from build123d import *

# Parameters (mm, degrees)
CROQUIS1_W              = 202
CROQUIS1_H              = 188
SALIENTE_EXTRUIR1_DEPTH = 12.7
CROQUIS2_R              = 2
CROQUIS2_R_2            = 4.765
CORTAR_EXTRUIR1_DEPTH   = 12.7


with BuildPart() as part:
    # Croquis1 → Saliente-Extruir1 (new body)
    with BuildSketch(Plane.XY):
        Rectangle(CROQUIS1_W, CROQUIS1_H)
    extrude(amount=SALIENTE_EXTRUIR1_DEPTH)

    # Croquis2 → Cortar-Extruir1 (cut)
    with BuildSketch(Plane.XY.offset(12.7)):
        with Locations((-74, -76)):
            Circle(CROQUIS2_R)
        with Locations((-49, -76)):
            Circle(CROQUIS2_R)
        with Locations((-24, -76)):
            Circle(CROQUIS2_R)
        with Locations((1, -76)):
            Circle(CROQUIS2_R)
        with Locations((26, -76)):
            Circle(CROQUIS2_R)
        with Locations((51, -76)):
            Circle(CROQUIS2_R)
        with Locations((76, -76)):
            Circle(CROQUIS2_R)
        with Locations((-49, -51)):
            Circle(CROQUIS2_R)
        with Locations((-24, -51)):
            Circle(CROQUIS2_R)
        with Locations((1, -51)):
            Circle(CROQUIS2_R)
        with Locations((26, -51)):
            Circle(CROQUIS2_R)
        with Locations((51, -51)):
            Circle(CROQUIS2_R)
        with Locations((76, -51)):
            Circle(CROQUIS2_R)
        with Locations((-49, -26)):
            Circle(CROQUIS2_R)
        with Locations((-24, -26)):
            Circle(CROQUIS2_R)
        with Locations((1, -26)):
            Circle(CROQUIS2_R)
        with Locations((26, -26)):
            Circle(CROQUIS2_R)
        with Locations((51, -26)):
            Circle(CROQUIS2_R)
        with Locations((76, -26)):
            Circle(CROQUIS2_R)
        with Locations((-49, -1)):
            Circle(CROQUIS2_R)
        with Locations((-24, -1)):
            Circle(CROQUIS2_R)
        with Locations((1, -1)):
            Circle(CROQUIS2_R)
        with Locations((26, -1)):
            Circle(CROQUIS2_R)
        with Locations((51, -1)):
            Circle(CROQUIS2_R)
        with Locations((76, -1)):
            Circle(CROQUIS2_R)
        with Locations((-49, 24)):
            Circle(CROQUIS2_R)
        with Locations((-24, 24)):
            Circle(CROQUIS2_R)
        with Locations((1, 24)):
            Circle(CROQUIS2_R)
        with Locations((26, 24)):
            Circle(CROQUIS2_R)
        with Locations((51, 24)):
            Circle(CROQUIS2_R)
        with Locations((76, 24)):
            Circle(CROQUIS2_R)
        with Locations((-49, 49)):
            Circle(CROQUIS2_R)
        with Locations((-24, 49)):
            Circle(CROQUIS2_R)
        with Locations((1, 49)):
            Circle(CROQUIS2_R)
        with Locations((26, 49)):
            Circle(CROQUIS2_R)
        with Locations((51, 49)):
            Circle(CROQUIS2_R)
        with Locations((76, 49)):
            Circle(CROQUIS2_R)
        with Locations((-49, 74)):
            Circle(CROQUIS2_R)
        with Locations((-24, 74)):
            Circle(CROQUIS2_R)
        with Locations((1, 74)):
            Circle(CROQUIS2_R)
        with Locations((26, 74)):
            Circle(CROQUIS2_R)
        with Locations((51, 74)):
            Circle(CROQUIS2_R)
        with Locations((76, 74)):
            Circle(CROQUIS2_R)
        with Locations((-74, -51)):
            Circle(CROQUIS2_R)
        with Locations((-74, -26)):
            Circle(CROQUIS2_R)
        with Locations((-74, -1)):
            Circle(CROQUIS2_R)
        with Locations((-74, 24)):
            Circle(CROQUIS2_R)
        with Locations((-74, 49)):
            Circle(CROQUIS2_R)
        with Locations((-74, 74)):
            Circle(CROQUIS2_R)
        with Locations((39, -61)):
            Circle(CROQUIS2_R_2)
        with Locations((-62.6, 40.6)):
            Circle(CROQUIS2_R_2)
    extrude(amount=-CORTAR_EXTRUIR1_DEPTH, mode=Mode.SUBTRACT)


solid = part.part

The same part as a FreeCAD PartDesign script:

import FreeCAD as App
import Part
import Sketcher

V = App.Vector


def add_polygon(sketch, points):
    """Adds a closed chain of lines whose ends are joined by coincident constraints."""
    first, n = sketch.GeometryCount, len(points)
    for a, b in zip(points, points[1:] + points[:1]):
        sketch.addGeometry(Part.LineSegment(App.Vector(*a, 0), App.Vector(*b, 0)), False)
    for i in range(n):
        sketch.addConstraint(Sketcher.Constraint("Coincident", first + i, 2, first + (i + 1) % n, 1))

doc = App.newDocument("Part")
params = doc.addObject("Spreadsheet::Sheet", "Params")
for row, (alias, value) in enumerate([
    ("sketch1_width", "202 mm"),
    ("sketch1_height", "188 mm"),
    ("pad1_length", "12.7 mm"),
    ("sketch2_diameter", "4 mm"),
    ("sketch2_diameter2", "9.53 mm"),
    ("pocket1_length", "12.7 mm"),
], start=1):
    params.set(f"A{row}", alias)
    params.set(f"B{row}", "=" + value)
    params.setAlias(f"B{row}", alias)

body = doc.addObject("PartDesign::Body", "Body")

# Sketch on XY plane
sketch1 = doc.addObject("Sketcher::SketchObject", "Sketch")
body.addObject(sketch1)
sketch1.AttachmentSupport = (doc.XY_Plane, [""])
sketch1.MapMode = "FlatFace"
add_polygon(sketch1, [(-101, 94), (-101, -94), (101, -94), (101, 94)])  # lines 0-3
sketch1.addConstraint([
    Sketcher.Constraint("Vertical", 0),
    Sketcher.Constraint("Horizontal", 1),
    Sketcher.Constraint("Vertical", 2),
    Sketcher.Constraint("Horizontal", 3),
    Sketcher.Constraint("Symmetric", 0, 2, 2, 2, -1, 1),
    Sketcher.Constraint("DistanceX", 1, 1, 1, 2, 202.0),
    Sketcher.Constraint("DistanceY", 0, 2, 0, 1, 188.0),
])
sketch1.setExpression("Constraints[9]", "Params.sketch1_width")
sketch1.setExpression("Constraints[10]", "Params.sketch1_height")
pad1 = doc.addObject("PartDesign::Pad", "Pad")
body.addObject(pad1)
pad1.Profile = sketch1
pad1.setExpression("Length", "Params.pad1_length")

# Sketch on XY plane
sketch2 = doc.addObject("Sketcher::SketchObject", "Sketch001")
body.addObject(sketch2)
sketch2.AttachmentSupport = (doc.XY_Plane, [""])
sketch2.MapMode = "FlatFace"
sketch2.AttachmentOffset = App.Placement(V(0, 0, 12.7), App.Rotation())
sketch2.addGeometry([
    Part.Circle(V(-74, -76, 0), V(0, 0, 1), 2),  # 0
    Part.Circle(V(-49, -76, 0), V(0, 0, 1), 2),  # 1
    Part.Circle(V(-24, -76, 0), V(0, 0, 1), 2),  # 2
    Part.Circle(V(1, -76, 0), V(0, 0, 1), 2),  # 3
    Part.Circle(V(26, -76, 0), V(0, 0, 1), 2),  # 4
    Part.Circle(V(51, -76, 0), V(0, 0, 1), 2),  # 5
    Part.Circle(V(76, -76, 0), V(0, 0, 1), 2),  # 6
    Part.Circle(V(-49, -51, 0), V(0, 0, 1), 2),  # 7
    Part.Circle(V(-24, -51, 0), V(0, 0, 1), 2),  # 8
    Part.Circle(V(1, -51, 0), V(0, 0, 1), 2),  # 9
    Part.Circle(V(26, -51, 0), V(0, 0, 1), 2),  # 10
    Part.Circle(V(51, -51, 0), V(0, 0, 1), 2),  # 11
    Part.Circle(V(76, -51, 0), V(0, 0, 1), 2),  # 12
    Part.Circle(V(-49, -26, 0), V(0, 0, 1), 2),  # 13
    Part.Circle(V(-24, -26, 0), V(0, 0, 1), 2),  # 14
    Part.Circle(V(1, -26, 0), V(0, 0, 1), 2),  # 15
    Part.Circle(V(26, -26, 0), V(0, 0, 1), 2),  # 16
    Part.Circle(V(51, -26, 0), V(0, 0, 1), 2),  # 17
    Part.Circle(V(76, -26, 0), V(0, 0, 1), 2),  # 18
    Part.Circle(V(-49, -1, 0), V(0, 0, 1), 2),  # 19
    Part.Circle(V(-24, -1, 0), V(0, 0, 1), 2),  # 20
    Part.Circle(V(1, -1, 0), V(0, 0, 1), 2),  # 21
    Part.Circle(V(26, -1, 0), V(0, 0, 1), 2),  # 22
    Part.Circle(V(51, -1, 0), V(0, 0, 1), 2),  # 23
    Part.Circle(V(76, -1, 0), V(0, 0, 1), 2),  # 24
    Part.Circle(V(-49, 24, 0), V(0, 0, 1), 2),  # 25
    Part.Circle(V(-24, 24, 0), V(0, 0, 1), 2),  # 26
    Part.Circle(V(1, 24, 0), V(0, 0, 1), 2),  # 27
    Part.Circle(V(26, 24, 0), V(0, 0, 1), 2),  # 28
    Part.Circle(V(51, 24, 0), V(0, 0, 1), 2),  # 29
    Part.Circle(V(76, 24, 0), V(0, 0, 1), 2),  # 30
    Part.Circle(V(-49, 49, 0), V(0, 0, 1), 2),  # 31
    Part.Circle(V(-24, 49, 0), V(0, 0, 1), 2),  # 32
    Part.Circle(V(1, 49, 0), V(0, 0, 1), 2),  # 33
    Part.Circle(V(26, 49, 0), V(0, 0, 1), 2),  # 34
    Part.Circle(V(51, 49, 0), V(0, 0, 1), 2),  # 35
    Part.Circle(V(76, 49, 0), V(0, 0, 1), 2),  # 36
    Part.Circle(V(-49, 74, 0), V(0, 0, 1), 2),  # 37
    Part.Circle(V(-24, 74, 0), V(0, 0, 1), 2),  # 38
    Part.Circle(V(1, 74, 0), V(0, 0, 1), 2),  # 39
    Part.Circle(V(26, 74, 0), V(0, 0, 1), 2),  # 40
    Part.Circle(V(51, 74, 0), V(0, 0, 1), 2),  # 41
    Part.Circle(V(76, 74, 0), V(0, 0, 1), 2),  # 42
    Part.Circle(V(-74, -51, 0), V(0, 0, 1), 2),  # 43
    Part.Circle(V(-74, -26, 0), V(0, 0, 1), 2),  # 44
    Part.Circle(V(-74, -1, 0), V(0, 0, 1), 2),  # 45
    Part.Circle(V(-74, 24, 0), V(0, 0, 1), 2),  # 46
    Part.Circle(V(-74, 49, 0), V(0, 0, 1), 2),  # 47
    Part.Circle(V(-74, 74, 0), V(0, 0, 1), 2),  # 48
    Part.Circle(V(39, -61, 0), V(0, 0, 1), 4.765),  # 49
    Part.Circle(V(-62.6, 40.6, 0), V(0, 0, 1), 4.765),  # 50
], False)
sketch2.addConstraint([
    Sketcher.Constraint("Equal", 0, 1),
    Sketcher.Constraint("Equal", 1, 2),
    Sketcher.Constraint("Equal", 2, 3),
    Sketcher.Constraint("Equal", 3, 4),
    Sketcher.Constraint("Equal", 4, 5),
    Sketcher.Constraint("Equal", 5, 6),
    Sketcher.Constraint("Equal", 6, 7),
    Sketcher.Constraint("Equal", 7, 8),
    Sketcher.Constraint("Equal", 8, 9),
    Sketcher.Constraint("Equal", 9, 10),
    Sketcher.Constraint("Equal", 10, 11),
    Sketcher.Constraint("Equal", 11, 12),
    Sketcher.Constraint("Equal", 12, 13),
    Sketcher.Constraint("Equal", 13, 14),
    Sketcher.Constraint("Equal", 14, 15),
    Sketcher.Constraint("Equal", 15, 16),
    Sketcher.Constraint("Equal", 16, 17),
    Sketcher.Constraint("Equal", 17, 18),
    Sketcher.Constraint("Equal", 18, 19),
    Sketcher.Constraint("Equal", 19, 20),
    Sketcher.Constraint("Equal", 20, 21),
    Sketcher.Constraint("Equal", 21, 22),
    Sketcher.Constraint("Equal", 22, 23),
    Sketcher.Constraint("Equal", 23, 24),
    Sketcher.Constraint("Equal", 24, 25),
    Sketcher.Constraint("Equal", 25, 26),
    Sketcher.Constraint("Equal", 26, 27),
    Sketcher.Constraint("Equal", 27, 28),
    Sketcher.Constraint("Equal", 28, 29),
    Sketcher.Constraint("Equal", 29, 30),
    Sketcher.Constraint("Equal", 30, 31),
    Sketcher.Constraint("Equal", 31, 32),
    Sketcher.Constraint("Equal", 32, 33),
    Sketcher.Constraint("Equal", 33, 34),
    Sketcher.Constraint("Equal", 34, 35),
    Sketcher.Constraint("Equal", 35, 36),
    Sketcher.Constraint("Equal", 36, 37),
    Sketcher.Constraint("Equal", 37, 38),
    Sketcher.Constraint("Equal", 38, 39),
    Sketcher.Constraint("Equal", 39, 40),
    Sketcher.Constraint("Equal", 40, 41),
    Sketcher.Constraint("Equal", 41, 42),
    Sketcher.Constraint("Equal", 42, 43),
    Sketcher.Constraint("Equal", 43, 44),
    Sketcher.Constraint("Equal", 44, 45),
    Sketcher.Constraint("Equal", 45, 46),
    Sketcher.Constraint("Equal", 46, 47),
    Sketcher.Constraint("Equal", 47, 48),
    Sketcher.Constraint("Equal", 49, 50),
    Sketcher.Constraint("Horizontal", 0, 3, 1, 3),
    Sketcher.Constraint("Horizontal", 1, 3, 2, 3),
    Sketcher.Constraint("Horizontal", 2, 3, 3, 3),
    Sketcher.Constraint("Horizontal", 3, 3, 4, 3),
    Sketcher.Constraint("Horizontal", 4, 3, 5, 3),
    Sketcher.Constraint("Horizontal", 5, 3, 6, 3),
    Sketcher.Constraint("Horizontal", 7, 3, 8, 3),
    Sketcher.Constraint("Horizontal", 8, 3, 9, 3),
    Sketcher.Constraint("Horizontal", 9, 3, 10, 3),
    Sketcher.Constraint("Horizontal", 10, 3, 11, 3),
    Sketcher.Constraint("Horizontal", 11, 3, 12, 3),
    Sketcher.Constraint("Horizontal", 13, 3, 14, 3),
    Sketcher.Constraint("Horizontal", 14, 3, 15, 3),
    Sketcher.Constraint("Horizontal", 15, 3, 16, 3),
    Sketcher.Constraint("Horizontal", 16, 3, 17, 3),
    Sketcher.Constraint("Horizontal", 17, 3, 18, 3),
    Sketcher.Constraint("Horizontal", 19, 3, 20, 3),
    Sketcher.Constraint("Horizontal", 20, 3, 21, 3),
    Sketcher.Constraint("Horizontal", 21, 3, 22, 3),
    Sketcher.Constraint("Horizontal", 22, 3, 23, 3),
    Sketcher.Constraint("Horizontal", 23, 3, 24, 3),
    Sketcher.Constraint("Horizontal", 25, 3, 26, 3),
    Sketcher.Constraint("Horizontal", 26, 3, 27, 3),
    Sketcher.Constraint("Horizontal", 27, 3, 28, 3),
    Sketcher.Constraint("Horizontal", 28, 3, 29, 3),
    Sketcher.Constraint("Horizontal", 29, 3, 30, 3),
    Sketcher.Constraint("Horizontal", 31, 3, 32, 3),
    Sketcher.Constraint("Horizontal", 32, 3, 33, 3),
    Sketcher.Constraint("Horizontal", 33, 3, 34, 3),
    Sketcher.Constraint("Horizontal", 34, 3, 35, 3),
    Sketcher.Constraint("Horizontal", 35, 3, 36, 3),
    Sketcher.Constraint("Horizontal", 37, 3, 38, 3),
    Sketcher.Constraint("Horizontal", 38, 3, 39, 3),
    Sketcher.Constraint("Horizontal", 39, 3, 40, 3),
    Sketcher.Constraint("Horizontal", 40, 3, 41, 3),
    Sketcher.Constraint("Horizontal", 41, 3, 42, 3),
    Sketcher.Constraint("Horizontal", 12, 3, 43, 3),
    Sketcher.Constraint("Horizontal", 18, 3, 44, 3),
    Sketcher.Constraint("Horizontal", 24, 3, 45, 3),
    Sketcher.Constraint("Horizontal", 30, 3, 46, 3),
    Sketcher.Constraint("Horizontal", 36, 3, 47, 3),
    Sketcher.Constraint("Horizontal", 42, 3, 48, 3),
    Sketcher.Constraint("Vertical", 1, 3, 7, 3),
    Sketcher.Constraint("Vertical", 2, 3, 8, 3),
    Sketcher.Constraint("Vertical", 3, 3, 9, 3),
    Sketcher.Constraint("Vertical", 4, 3, 10, 3),
    Sketcher.Constraint("Vertical", 5, 3, 11, 3),
    Sketcher.Constraint("Vertical", 6, 3, 12, 3),
    Sketcher.Constraint("Vertical", 7, 3, 13, 3),
    Sketcher.Constraint("Vertical", 8, 3, 14, 3),
    Sketcher.Constraint("Vertical", 9, 3, 15, 3),
    Sketcher.Constraint("Vertical", 10, 3, 16, 3),
    Sketcher.Constraint("Vertical", 11, 3, 17, 3),
    Sketcher.Constraint("Vertical", 12, 3, 18, 3),
    Sketcher.Constraint("Vertical", 13, 3, 19, 3),
    Sketcher.Constraint("Vertical", 14, 3, 20, 3),
    Sketcher.Constraint("Vertical", 15, 3, 21, 3),
    Sketcher.Constraint("Vertical", 16, 3, 22, 3),
    Sketcher.Constraint("Vertical", 17, 3, 23, 3),
    Sketcher.Constraint("Vertical", 18, 3, 24, 3),
    Sketcher.Constraint("Vertical", 19, 3, 25, 3),
    Sketcher.Constraint("Vertical", 20, 3, 26, 3),
    Sketcher.Constraint("Vertical", 21, 3, 27, 3),
    Sketcher.Constraint("Vertical", 22, 3, 28, 3),
    Sketcher.Constraint("Vertical", 23, 3, 29, 3),
    Sketcher.Constraint("Vertical", 24, 3, 30, 3),
    Sketcher.Constraint("Vertical", 25, 3, 31, 3),
    Sketcher.Constraint("Vertical", 26, 3, 32, 3),
    Sketcher.Constraint("Vertical", 27, 3, 33, 3),
    Sketcher.Constraint("Vertical", 28, 3, 34, 3),
    Sketcher.Constraint("Vertical", 29, 3, 35, 3),
    Sketcher.Constraint("Vertical", 30, 3, 36, 3),
    Sketcher.Constraint("Vertical", 31, 3, 37, 3),
    Sketcher.Constraint("Vertical", 32, 3, 38, 3),
    Sketcher.Constraint("Vertical", 33, 3, 39, 3),
    Sketcher.Constraint("Vertical", 34, 3, 40, 3),
    Sketcher.Constraint("Vertical", 35, 3, 41, 3),
    Sketcher.Constraint("Vertical", 36, 3, 42, 3),
    Sketcher.Constraint("Vertical", 0, 3, 43, 3),
    Sketcher.Constraint("Vertical", 43, 3, 44, 3),
    Sketcher.Constraint("Vertical", 44, 3, 45, 3),
    Sketcher.Constraint("Vertical", 45, 3, 46, 3),
    Sketcher.Constraint("Vertical", 46, 3, 47, 3),
    Sketcher.Constraint("Vertical", 47, 3, 48, 3),
    Sketcher.Constraint("Diameter", 0, 4.0),
    Sketcher.Constraint("Diameter", 49, 9.53),
    Sketcher.Constraint("DistanceX", 0, 3, -1, 1, 74.0),
    Sketcher.Constraint("DistanceY", 0, 3, -1, 1, 76.0),
    Sketcher.Constraint("DistanceX", 1, 3, -1, 1, 49.0),
    Sketcher.Constraint("DistanceX", 2, 3, -1, 1, 24.0),
    Sketcher.Constraint("DistanceX", -1, 1, 3, 3, 1.0),
    Sketcher.Constraint("DistanceX", -1, 1, 4, 3, 26.0),
    Sketcher.Constraint("DistanceX", -1, 1, 5, 3, 51.0),
    Sketcher.Constraint("DistanceX", -1, 1, 6, 3, 76.0),
    Sketcher.Constraint("DistanceY", 7, 3, -1, 1, 51.0),
    Sketcher.Constraint("DistanceY", 13, 3, -1, 1, 26.0),
    Sketcher.Constraint("DistanceY", 19, 3, -1, 1, 1.0),
    Sketcher.Constraint("DistanceY", -1, 1, 25, 3, 24.0),
    Sketcher.Constraint("DistanceY", -1, 1, 31, 3, 49.0),
    Sketcher.Constraint("DistanceY", -1, 1, 37, 3, 74.0),
    Sketcher.Constraint("DistanceX", -1, 1, 49, 3, 39.0),
    Sketcher.Constraint("DistanceY", 49, 3, -1, 1, 61.0),
    Sketcher.Constraint("DistanceX", 50, 3, -1, 1, 62.6),
    Sketcher.Constraint("DistanceY", -1, 1, 50, 3, 40.6),
])
sketch2.setExpression("Constraints[133]", "Params.sketch2_diameter")
sketch2.setExpression("Constraints[134]", "Params.sketch2_diameter2")
pocket1 = doc.addObject("PartDesign::Pocket", "Pocket")
body.addObject(pocket1)
pocket1.Profile = sketch2
pocket1.setExpression("Length", "Params.pocket1_length")

doc.recompute()
